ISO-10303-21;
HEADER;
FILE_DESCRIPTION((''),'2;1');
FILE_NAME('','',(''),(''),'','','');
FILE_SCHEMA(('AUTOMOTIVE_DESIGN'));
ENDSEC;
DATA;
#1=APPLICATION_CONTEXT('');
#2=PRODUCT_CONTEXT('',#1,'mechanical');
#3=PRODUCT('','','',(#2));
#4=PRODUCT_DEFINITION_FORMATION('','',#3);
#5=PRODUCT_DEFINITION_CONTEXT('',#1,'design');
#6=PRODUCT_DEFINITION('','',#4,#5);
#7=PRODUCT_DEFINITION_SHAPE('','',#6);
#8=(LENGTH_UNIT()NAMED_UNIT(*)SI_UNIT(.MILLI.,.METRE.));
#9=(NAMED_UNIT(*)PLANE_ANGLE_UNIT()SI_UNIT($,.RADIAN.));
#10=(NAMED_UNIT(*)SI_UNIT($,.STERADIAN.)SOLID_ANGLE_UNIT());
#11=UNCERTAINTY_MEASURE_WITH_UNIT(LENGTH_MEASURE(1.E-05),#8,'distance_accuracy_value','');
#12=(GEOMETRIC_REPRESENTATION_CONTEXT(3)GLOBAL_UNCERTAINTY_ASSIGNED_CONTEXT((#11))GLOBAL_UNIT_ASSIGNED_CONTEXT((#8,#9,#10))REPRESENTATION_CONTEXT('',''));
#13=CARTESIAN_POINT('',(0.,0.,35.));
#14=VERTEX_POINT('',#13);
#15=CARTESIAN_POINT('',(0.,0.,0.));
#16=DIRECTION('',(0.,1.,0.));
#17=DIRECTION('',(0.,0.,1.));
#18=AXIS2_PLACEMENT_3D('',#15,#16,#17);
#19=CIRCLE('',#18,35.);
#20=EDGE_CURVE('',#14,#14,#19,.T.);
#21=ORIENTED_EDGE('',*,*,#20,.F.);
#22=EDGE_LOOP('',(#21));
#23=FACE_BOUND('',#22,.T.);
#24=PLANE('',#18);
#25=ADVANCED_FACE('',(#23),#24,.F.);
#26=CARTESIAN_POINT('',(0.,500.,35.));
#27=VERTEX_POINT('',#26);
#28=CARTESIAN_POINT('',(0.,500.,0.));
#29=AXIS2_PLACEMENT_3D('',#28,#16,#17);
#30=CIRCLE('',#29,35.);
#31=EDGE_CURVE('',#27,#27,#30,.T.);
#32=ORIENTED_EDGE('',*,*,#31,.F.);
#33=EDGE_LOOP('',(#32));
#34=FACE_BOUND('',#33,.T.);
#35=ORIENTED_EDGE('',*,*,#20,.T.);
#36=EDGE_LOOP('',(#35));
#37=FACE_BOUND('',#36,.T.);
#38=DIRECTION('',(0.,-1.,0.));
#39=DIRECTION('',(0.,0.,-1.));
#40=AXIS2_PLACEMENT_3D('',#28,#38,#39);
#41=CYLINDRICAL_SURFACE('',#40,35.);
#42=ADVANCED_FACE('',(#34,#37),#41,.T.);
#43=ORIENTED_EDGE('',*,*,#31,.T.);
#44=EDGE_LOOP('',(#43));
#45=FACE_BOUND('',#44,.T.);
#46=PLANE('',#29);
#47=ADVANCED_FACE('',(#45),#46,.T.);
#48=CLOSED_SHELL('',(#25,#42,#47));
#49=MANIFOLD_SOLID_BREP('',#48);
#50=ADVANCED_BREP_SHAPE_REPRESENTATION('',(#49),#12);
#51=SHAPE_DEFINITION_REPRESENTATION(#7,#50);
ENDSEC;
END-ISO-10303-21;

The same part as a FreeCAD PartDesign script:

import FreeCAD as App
import Part
import Sketcher
from FreeCAD import Vector
Q = App.Units.Quantity

doc = App.newDocument("Part")
body = doc.addObject("PartDesign::Body", "Body")

# Sketch on XZ plane
sketch1 = doc.addObject("Sketcher::SketchObject", "Sketch")
body.addObject(sketch1)
sketch1.AttachmentSupport = (doc.XZ_Plane, [""])
sketch1.MapMode = "FlatFace"
sketch1.addGeometry(Part.Circle(Vector(0, 0, 0), Vector(0, 0, 1), 35), False)
sketch1.addConstraint([
    Sketcher.Constraint("Coincident", 0, 3, -1, 1),
    Sketcher.Constraint("Diameter", 0, Q("70 mm")),
])
pad1 = doc.addObject("PartDesign::Pad", "Pad")
body.addObject(pad1)
pad1.Profile = sketch1
pad1.Length = 500
pad1.Reversed = True

doc.recompute()
